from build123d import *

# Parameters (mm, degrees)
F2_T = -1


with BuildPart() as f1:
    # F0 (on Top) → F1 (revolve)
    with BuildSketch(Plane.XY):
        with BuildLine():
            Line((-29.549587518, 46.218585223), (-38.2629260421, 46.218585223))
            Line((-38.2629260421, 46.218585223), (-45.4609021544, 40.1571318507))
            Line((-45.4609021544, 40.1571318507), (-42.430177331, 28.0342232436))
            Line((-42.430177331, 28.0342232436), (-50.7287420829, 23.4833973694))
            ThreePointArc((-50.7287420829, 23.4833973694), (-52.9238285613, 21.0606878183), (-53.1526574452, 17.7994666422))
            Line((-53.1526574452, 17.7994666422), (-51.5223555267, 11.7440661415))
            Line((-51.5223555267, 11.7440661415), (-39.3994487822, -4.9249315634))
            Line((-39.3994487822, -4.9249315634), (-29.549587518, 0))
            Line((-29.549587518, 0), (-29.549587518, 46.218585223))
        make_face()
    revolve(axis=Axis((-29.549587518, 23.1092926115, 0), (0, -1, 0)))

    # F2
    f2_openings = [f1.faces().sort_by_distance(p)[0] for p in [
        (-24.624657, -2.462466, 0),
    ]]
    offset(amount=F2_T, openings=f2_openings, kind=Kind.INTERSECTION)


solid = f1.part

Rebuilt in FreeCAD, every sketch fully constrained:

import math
import FreeCAD as App
import Part
import Sketcher

V = App.Vector


def faces_at(feature, points):
    """Names of the faces that lie closest to the given points."""
    faces = feature.Shape.Faces
    near = lambda p: min(range(len(faces)), key=lambda i: faces[i].distToShape(Part.Vertex(*p))[0])
    return sorted({f"Face{near(p) + 1}" for p in points})

doc = App.newDocument("Part")
body = doc.addObject("PartDesign::Body", "Body")

sketch1 = body.newObject("Sketcher::SketchObject", "Sketch")
sketch1.AttachmentSupport = (doc.getObject("XY_Plane"), [""])
sketch1.MapMode = "FlatFace"
sketch1.addGeometry([
    Part.LineSegment(V(-30, 46, 0), V(-38, 46, 0)),
    Part.LineSegment(V(-38, 46, 0), V(-45, 40, 0)),
    Part.LineSegment(V(-45, 40, 0), V(-42, 28, 0)),
    Part.LineSegment(V(-42, 28, 0), V(-51, 23, 0)),
    Part.ArcOfCircle(Part.Circle(V(-48, 19, 0), V(0, 0, 1), 5), math.radians(119), math.radians(195)),
    Part.LineSegment(V(-53, 18, 0), V(-52, 12, 0)),
    Part.LineSegment(V(-52, 12, 0), V(-39, -5, 0)),
    Part.LineSegment(V(-39, -5, 0), V(-30, 0, 0)),
    Part.LineSegment(V(-30, 0, 0), V(-30, 46, 0)),
], False)
sketch1.addGeometry(Part.LineSegment(V(-30, 46, 0), V(-30, -5, 0)), True)
sketch1.addConstraint([
    Sketcher.Constraint("Coincident", 0, 2, 1, 1),
    Sketcher.Constraint("Coincident", 1, 2, 2, 1),
    Sketcher.Constraint("Coincident", 2, 2, 3, 1),
    Sketcher.Constraint("Tangent", 3, 2, 4, 1),
    Sketcher.Constraint("Tangent", 4, 2, 5, 1),
    Sketcher.Constraint("Coincident", 5, 2, 6, 1),
    Sketcher.Constraint("Coincident", 6, 2, 7, 1),
    Sketcher.Constraint("Coincident", 7, 2, 8, 1),
    Sketcher.Constraint("Coincident", 8, 2, 0, 1),
    Sketcher.Constraint("Horizontal", 0),
    Sketcher.Constraint("Vertical", 8),
    Sketcher.Constraint("Vertical", 9),
    Sketcher.Constraint("Coincident", 9, 1, 8, 2),
    Sketcher.Constraint("PointOnObject", 7, 2, -1),
    Sketcher.Constraint("Horizontal", 6, 2, 9, 2),
    Sketcher.Constraint("Radius", 4, 5.0),
    Sketcher.Constraint("DistanceX", 0, 2, 0, 1, 8.713339),
    Sketcher.Constraint("DistanceX", 4, 3, 2, 2, 5.894402),
    Sketcher.Constraint("DistanceX", 4, 2, 5, 2, 1.630302),
    Sketcher.Constraint("DistanceY", 5, 2, 4, 2, 6.055401),
    Sketcher.Constraint("DistanceY", 6, 2, 4, 2, 22.724398),
    Sketcher.Constraint("Distance", 1, 9.410211),
    Sketcher.Constraint("Distance", 3, 9.46447),
    Sketcher.Constraint("Distance", 6, 20.611171),
    Sketcher.Constraint("Distance", 7, 11.01248),
    Sketcher.Constraint("DistanceY", 8, 1, 8, 2, 46.218585),
    Sketcher.Constraint("DistanceY", 9, 2, 9, 1, 51.143517),
    Sketcher.Constraint("DistanceX", 4, 3, -1, 1, 48.324579),
    Sketcher.Constraint("DistanceY", -1, 1, 1, 2, 40.157132),
])
revolution = body.newObject("PartDesign::Revolution", "Revolution")
revolution.Profile = sketch1
revolution.ReferenceAxis = (sketch1, ["Axis0"])
revolution.Angle = 360
doc.recompute()

thickness = body.newObject("PartDesign::Thickness", "Thickness")
thickness.Base = (revolution, faces_at(revolution, [(-24.625, -2.462, 0)]))
thickness.Value = 1
thickness.Reversed = True
thickness.Join = "Intersection"

doc.recompute()
